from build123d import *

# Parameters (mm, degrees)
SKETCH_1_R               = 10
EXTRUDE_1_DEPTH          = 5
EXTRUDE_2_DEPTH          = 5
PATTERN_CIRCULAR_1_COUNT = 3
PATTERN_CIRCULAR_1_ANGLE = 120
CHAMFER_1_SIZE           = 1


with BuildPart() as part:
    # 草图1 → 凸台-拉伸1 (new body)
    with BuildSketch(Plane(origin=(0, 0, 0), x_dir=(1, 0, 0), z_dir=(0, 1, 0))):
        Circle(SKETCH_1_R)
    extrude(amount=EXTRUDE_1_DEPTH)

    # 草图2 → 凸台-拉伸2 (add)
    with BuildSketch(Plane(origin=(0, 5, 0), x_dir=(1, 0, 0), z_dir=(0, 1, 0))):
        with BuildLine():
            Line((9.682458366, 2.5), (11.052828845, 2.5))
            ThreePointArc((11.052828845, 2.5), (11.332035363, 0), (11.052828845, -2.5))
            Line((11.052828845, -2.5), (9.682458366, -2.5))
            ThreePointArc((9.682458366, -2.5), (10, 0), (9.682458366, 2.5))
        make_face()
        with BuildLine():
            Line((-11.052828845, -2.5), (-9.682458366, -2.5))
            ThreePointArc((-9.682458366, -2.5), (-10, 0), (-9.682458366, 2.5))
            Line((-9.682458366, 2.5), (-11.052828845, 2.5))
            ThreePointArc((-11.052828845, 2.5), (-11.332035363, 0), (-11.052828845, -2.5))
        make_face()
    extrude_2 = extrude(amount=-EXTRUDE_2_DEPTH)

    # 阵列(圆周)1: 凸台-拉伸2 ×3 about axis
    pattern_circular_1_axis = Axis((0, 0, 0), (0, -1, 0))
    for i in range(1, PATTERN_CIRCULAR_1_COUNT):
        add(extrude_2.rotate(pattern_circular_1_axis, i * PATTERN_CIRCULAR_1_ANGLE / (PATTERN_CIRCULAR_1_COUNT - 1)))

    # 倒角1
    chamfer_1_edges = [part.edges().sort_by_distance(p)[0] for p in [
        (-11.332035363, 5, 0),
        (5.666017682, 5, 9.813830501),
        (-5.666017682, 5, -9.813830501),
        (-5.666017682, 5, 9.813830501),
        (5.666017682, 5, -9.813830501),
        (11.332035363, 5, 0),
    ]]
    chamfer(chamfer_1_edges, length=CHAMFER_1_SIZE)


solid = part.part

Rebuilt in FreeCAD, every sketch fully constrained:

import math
import FreeCAD as App
import Part
import Sketcher

V = App.Vector


def edges_at(feature, points):
    """Names of the edges that pass closest to the given points."""
    edges = feature.Shape.Edges
    near = lambda p: min(range(len(edges)), key=lambda i: edges[i].distToShape(Part.Vertex(*p))[0])
    return sorted({f"Edge{near(p) + 1}" for p in points})

doc = App.newDocument("Part")
body = doc.addObject("PartDesign::Body", "Body")

# Sketch on XZ plane
sketch1 = body.newObject("Sketcher::SketchObject", "Sketch")
sketch1.AttachmentSupport = (doc.getObject("XZ_Plane"), [""])
sketch1.MapMode = "FlatFace"
sketch1.addGeometry(Part.Circle(V(0, 0, 0), V(0, 0, 1), 10), False)
sketch1.addConstraint([
    Sketcher.Constraint("Coincident", 0, 3, -1, 1),
    Sketcher.Constraint("Diameter", 0, 20.0),
])
pad1 = body.newObject("PartDesign::Pad", "Pad")
pad1.Profile = sketch1
pad1.Length = 5
pad1.Reversed = True

# Sketch on XZ plane
sketch2 = body.newObject("Sketcher::SketchObject", "Sketch001")
sketch2.AttachmentSupport = (doc.getObject("XZ_Plane"), [""])
sketch2.MapMode = "FlatFace"
sketch2.AttachmentOffset = App.Placement(V(0, 0, -5), App.Rotation())
sketch2.addGeometry([
    Part.LineSegment(V(11.1, -2.5, 0), V(9.7, -2.5, 0)),  # 0
    Part.ArcOfCircle(Part.Circle(V(0, 0, 0), V(0, 0, 1), 10), math.radians(-14), math.radians(14)),  # 1
    Part.LineSegment(V(9.7, 2.5, 0), V(11.1, 2.5, 0)),  # 2
    Part.ArcOfCircle(Part.Circle(V(0, 0, 0), V(0, 0, 1), 11.3), math.radians(-13), math.radians(13)),  # 3
    Part.LineSegment(V(-11.1, 2.5, 0), V(-9.7, 2.5, 0)),  # 4
    Part.ArcOfCircle(Part.Circle(V(0, 0, 0), V(0, 0, 1), 10), math.radians(166), math.radians(194)),  # 5
    Part.LineSegment(V(-9.7, -2.5, 0), V(-11.1, -2.5, 0)),  # 6
    Part.ArcOfCircle(Part.Circle(V(0, 0, 0), V(0, 0, 1), 11.3), math.radians(167), math.radians(193)),  # 7
], False)
sketch2.addConstraint([
    Sketcher.Constraint("Coincident", 0, 2, 1, 1),
    Sketcher.Constraint("Coincident", 1, 2, 2, 1),
    Sketcher.Constraint("Coincident", 2, 2, 3, 2),
    Sketcher.Constraint("Coincident", 3, 1, 0, 1),
    Sketcher.Constraint("Coincident", 4, 2, 5, 1),
    Sketcher.Constraint("Coincident", 5, 2, 6, 1),
    Sketcher.Constraint("Coincident", 6, 2, 7, 2),
    Sketcher.Constraint("Coincident", 7, 1, 4, 1),
    Sketcher.Constraint("Horizontal", 0),
    Sketcher.Constraint("Horizontal", 2),
    Sketcher.Constraint("Horizontal", 4),
    Sketcher.Constraint("Horizontal", 6),
    Sketcher.Constraint("Coincident", 1, 3, -1, 1),
    Sketcher.Constraint("Coincident", 3, 3, -1, 1),
    Sketcher.Constraint("Coincident", 5, 3, -1, 1),
    Sketcher.Constraint("Coincident", 7, 3, -1, 1),
    Sketcher.Constraint("Equal", 1, 5),
    Sketcher.Constraint("Equal", 3, 7),
    Sketcher.Constraint("Horizontal", 2, 2, 4, 2),
    Sketcher.Constraint("Horizontal", 3, 1, 5, 2),
    Sketcher.Constraint("Vertical", 0, 2, 1, 2),
    Sketcher.Constraint("Radius", 1, 10.0),
    Sketcher.Constraint("DistanceY", 0, 2, 1, 2, 5.0),
    Sketcher.Constraint("Radius", 3, 11.332035),
])
pad2 = body.newObject("PartDesign::Pad", "Pad001")
pad2.Profile = sketch2
pad2.Length = 5
doc.recompute()

polarpattern = body.newObject("PartDesign::PolarPattern", "PolarPattern")
polarpattern.Originals = [pad2]
polarpattern.Axis = (doc.getObject("Y_Axis"), [""])
polarpattern.Angle = 120
polarpattern.Occurrences = 3
polarpattern.Reversed = True
body.Tip = polarpattern
doc.recompute()

chamfer = body.newObject("PartDesign::Chamfer", "Chamfer")
chamfer.Base = (polarpattern, edges_at(polarpattern, [
    (-11.332, 5, 0),
    (5.666, 5, 9.814),
    (-5.666, 5, -9.814),
    (-5.666, 5, 9.814),
    (5.666, 5, -9.814),
    (11.332, 5, 0),
]))
chamfer.Size = 1

doc.recompute()
